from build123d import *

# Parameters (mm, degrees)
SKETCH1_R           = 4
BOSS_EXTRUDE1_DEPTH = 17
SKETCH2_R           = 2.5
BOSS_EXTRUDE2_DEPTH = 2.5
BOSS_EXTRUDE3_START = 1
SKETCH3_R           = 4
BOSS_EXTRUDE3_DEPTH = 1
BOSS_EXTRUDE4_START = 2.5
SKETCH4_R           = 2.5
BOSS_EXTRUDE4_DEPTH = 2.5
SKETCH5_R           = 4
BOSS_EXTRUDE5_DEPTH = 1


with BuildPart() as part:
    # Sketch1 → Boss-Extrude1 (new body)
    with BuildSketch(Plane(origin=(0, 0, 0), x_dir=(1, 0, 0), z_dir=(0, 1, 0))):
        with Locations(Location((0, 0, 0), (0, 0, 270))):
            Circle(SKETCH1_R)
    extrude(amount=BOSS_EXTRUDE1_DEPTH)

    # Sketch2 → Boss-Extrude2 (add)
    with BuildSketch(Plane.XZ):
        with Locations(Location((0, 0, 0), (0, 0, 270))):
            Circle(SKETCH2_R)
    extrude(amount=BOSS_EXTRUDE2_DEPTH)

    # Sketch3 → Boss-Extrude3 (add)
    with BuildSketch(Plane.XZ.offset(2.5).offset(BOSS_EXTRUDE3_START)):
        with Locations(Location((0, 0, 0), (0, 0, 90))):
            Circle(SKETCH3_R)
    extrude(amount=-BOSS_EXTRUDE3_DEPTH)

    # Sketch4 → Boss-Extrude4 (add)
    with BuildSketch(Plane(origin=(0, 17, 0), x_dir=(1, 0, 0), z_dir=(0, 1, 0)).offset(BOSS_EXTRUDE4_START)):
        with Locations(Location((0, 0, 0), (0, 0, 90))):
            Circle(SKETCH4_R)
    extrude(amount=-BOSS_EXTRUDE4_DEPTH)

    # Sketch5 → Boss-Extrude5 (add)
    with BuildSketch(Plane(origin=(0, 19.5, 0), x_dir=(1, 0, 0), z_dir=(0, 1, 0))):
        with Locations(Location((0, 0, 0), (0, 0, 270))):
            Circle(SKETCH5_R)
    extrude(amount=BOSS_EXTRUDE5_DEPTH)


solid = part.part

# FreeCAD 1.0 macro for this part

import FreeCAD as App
import Part
import Sketcher

V = App.Vector
Q = App.Units.Quantity

doc = App.newDocument("Part")
params = doc.addObject("Spreadsheet::Sheet", "Params")
for row, (alias, value) in enumerate([
    ("sketch1_diameter", "8 mm"),
    ("pad1_length", "17 mm"),
    ("sketch2_diameter", "5 mm"),
    ("pad2_length", "2.5 mm"),
    ("sketch3_diameter", "8 mm"),
    ("pad3_length", "1 mm"),
    ("sketch4_diameter", "5 mm"),
    ("pad4_length", "2.5 mm"),
    ("sketch5_diameter", "8 mm"),
    ("pad5_length", "1 mm"),
], start=1):
    params.set(f"A{row}", alias)
    params.set(f"B{row}", "=" + value)
    params.setAlias(f"B{row}", alias)

body = doc.addObject("PartDesign::Body", "Body")

# Sketch on XZ plane
sketch1 = doc.addObject("Sketcher::SketchObject", "Sketch")
body.addObject(sketch1)
sketch1.AttachmentSupport = (doc.XZ_Plane, [""])
sketch1.MapMode = "FlatFace"
sketch1.addGeometry(Part.Circle(V(0, 0, 0), V(0, 0, 1), 4), False)
sketch1.addConstraint([
    Sketcher.Constraint("Coincident", 0, 3, -1, 1),
    Sketcher.Constraint("Diameter", 0, Q("8 mm")),
])
sketch1.setExpression("Constraints[1]", "Params.sketch1_diameter")
pad1 = doc.addObject("PartDesign::Pad", "Pad")
body.addObject(pad1)
pad1.Profile = sketch1
pad1.setExpression("Length", "Params.pad1_length")
pad1.Reversed = True

# Sketch on XZ plane
sketch2 = doc.addObject("Sketcher::SketchObject", "Sketch001")
body.addObject(sketch2)
sketch2.AttachmentSupport = (doc.XZ_Plane, [""])
sketch2.MapMode = "FlatFace"
sketch2.addGeometry(Part.Circle(V(0, 0, 0), V(0, 0, 1), 2.5), False)
sketch2.addConstraint([
    Sketcher.Constraint("Coincident", 0, 3, -1, 1),
    Sketcher.Constraint("Diameter", 0, Q("5 mm")),
])
sketch2.setExpression("Constraints[1]", "Params.sketch2_diameter")
pad2 = doc.addObject("PartDesign::Pad", "Pad001")
body.addObject(pad2)
pad2.Profile = sketch2
pad2.setExpression("Length", "Params.pad2_length")

# Sketch on XZ plane
sketch3 = doc.addObject("Sketcher::SketchObject", "Sketch002")
body.addObject(sketch3)
sketch3.AttachmentSupport = (doc.XZ_Plane, [""])
sketch3.MapMode = "FlatFace"
sketch3.AttachmentOffset = App.Placement(V(0, 0, 3.5), App.Rotation())
sketch3.addGeometry(Part.Circle(V(0, 0, 0), V(0, 0, 1), 4), False)
sketch3.addConstraint([
    Sketcher.Constraint("Coincident", 0, 3, -1, 1),
    Sketcher.Constraint("Diameter", 0, Q("8 mm")),
])
sketch3.setExpression("Constraints[1]", "Params.sketch3_diameter")
pad3 = doc.addObject("PartDesign::Pad", "Pad002")
body.addObject(pad3)
pad3.Profile = sketch3
pad3.setExpression("Length", "Params.pad3_length")
pad3.Reversed = True

# Sketch on XZ plane
sketch4 = doc.addObject("Sketcher::SketchObject", "Sketch003")
body.addObject(sketch4)
sketch4.AttachmentSupport = (doc.XZ_Plane, [""])
sketch4.MapMode = "FlatFace"
sketch4.AttachmentOffset = App.Placement(V(0, 0, -19.5), App.Rotation())
sketch4.addGeometry(Part.Circle(V(0, 0, 0), V(0, 0, 1), 2.5), False)
sketch4.addConstraint([
    Sketcher.Constraint("Coincident", 0, 3, -1, 1),
    Sketcher.Constraint("Diameter", 0, Q("5 mm")),
])
sketch4.setExpression("Constraints[1]", "Params.sketch4_diameter")
pad4 = doc.addObject("PartDesign::Pad", "Pad003")
body.addObject(pad4)
pad4.Profile = sketch4
pad4.setExpression("Length", "Params.pad4_length")

# Sketch on XZ plane
sketch5 = doc.addObject("Sketcher::SketchObject", "Sketch004")
body.addObject(sketch5)
sketch5.AttachmentSupport = (doc.XZ_Plane, [""])
sketch5.MapMode = "FlatFace"
sketch5.AttachmentOffset = App.Placement(V(0, 0, -19.5), App.Rotation())
sketch5.addGeometry(Part.Circle(V(0, 0, 0), V(0, 0, 1), 4), False)
sketch5.addConstraint([
    Sketcher.Constraint("Coincident", 0, 3, -1, 1),
    Sketcher.Constraint("Diameter", 0, Q("8 mm")),
])
sketch5.setExpression("Constraints[1]", "Params.sketch5_diameter")
pad5 = doc.addObject("PartDesign::Pad", "Pad004")
body.addObject(pad5)
pad5.Profile = sketch5
pad5.setExpression("Length", "Params.pad5_length")
pad5.Reversed = True

doc.recompute()
